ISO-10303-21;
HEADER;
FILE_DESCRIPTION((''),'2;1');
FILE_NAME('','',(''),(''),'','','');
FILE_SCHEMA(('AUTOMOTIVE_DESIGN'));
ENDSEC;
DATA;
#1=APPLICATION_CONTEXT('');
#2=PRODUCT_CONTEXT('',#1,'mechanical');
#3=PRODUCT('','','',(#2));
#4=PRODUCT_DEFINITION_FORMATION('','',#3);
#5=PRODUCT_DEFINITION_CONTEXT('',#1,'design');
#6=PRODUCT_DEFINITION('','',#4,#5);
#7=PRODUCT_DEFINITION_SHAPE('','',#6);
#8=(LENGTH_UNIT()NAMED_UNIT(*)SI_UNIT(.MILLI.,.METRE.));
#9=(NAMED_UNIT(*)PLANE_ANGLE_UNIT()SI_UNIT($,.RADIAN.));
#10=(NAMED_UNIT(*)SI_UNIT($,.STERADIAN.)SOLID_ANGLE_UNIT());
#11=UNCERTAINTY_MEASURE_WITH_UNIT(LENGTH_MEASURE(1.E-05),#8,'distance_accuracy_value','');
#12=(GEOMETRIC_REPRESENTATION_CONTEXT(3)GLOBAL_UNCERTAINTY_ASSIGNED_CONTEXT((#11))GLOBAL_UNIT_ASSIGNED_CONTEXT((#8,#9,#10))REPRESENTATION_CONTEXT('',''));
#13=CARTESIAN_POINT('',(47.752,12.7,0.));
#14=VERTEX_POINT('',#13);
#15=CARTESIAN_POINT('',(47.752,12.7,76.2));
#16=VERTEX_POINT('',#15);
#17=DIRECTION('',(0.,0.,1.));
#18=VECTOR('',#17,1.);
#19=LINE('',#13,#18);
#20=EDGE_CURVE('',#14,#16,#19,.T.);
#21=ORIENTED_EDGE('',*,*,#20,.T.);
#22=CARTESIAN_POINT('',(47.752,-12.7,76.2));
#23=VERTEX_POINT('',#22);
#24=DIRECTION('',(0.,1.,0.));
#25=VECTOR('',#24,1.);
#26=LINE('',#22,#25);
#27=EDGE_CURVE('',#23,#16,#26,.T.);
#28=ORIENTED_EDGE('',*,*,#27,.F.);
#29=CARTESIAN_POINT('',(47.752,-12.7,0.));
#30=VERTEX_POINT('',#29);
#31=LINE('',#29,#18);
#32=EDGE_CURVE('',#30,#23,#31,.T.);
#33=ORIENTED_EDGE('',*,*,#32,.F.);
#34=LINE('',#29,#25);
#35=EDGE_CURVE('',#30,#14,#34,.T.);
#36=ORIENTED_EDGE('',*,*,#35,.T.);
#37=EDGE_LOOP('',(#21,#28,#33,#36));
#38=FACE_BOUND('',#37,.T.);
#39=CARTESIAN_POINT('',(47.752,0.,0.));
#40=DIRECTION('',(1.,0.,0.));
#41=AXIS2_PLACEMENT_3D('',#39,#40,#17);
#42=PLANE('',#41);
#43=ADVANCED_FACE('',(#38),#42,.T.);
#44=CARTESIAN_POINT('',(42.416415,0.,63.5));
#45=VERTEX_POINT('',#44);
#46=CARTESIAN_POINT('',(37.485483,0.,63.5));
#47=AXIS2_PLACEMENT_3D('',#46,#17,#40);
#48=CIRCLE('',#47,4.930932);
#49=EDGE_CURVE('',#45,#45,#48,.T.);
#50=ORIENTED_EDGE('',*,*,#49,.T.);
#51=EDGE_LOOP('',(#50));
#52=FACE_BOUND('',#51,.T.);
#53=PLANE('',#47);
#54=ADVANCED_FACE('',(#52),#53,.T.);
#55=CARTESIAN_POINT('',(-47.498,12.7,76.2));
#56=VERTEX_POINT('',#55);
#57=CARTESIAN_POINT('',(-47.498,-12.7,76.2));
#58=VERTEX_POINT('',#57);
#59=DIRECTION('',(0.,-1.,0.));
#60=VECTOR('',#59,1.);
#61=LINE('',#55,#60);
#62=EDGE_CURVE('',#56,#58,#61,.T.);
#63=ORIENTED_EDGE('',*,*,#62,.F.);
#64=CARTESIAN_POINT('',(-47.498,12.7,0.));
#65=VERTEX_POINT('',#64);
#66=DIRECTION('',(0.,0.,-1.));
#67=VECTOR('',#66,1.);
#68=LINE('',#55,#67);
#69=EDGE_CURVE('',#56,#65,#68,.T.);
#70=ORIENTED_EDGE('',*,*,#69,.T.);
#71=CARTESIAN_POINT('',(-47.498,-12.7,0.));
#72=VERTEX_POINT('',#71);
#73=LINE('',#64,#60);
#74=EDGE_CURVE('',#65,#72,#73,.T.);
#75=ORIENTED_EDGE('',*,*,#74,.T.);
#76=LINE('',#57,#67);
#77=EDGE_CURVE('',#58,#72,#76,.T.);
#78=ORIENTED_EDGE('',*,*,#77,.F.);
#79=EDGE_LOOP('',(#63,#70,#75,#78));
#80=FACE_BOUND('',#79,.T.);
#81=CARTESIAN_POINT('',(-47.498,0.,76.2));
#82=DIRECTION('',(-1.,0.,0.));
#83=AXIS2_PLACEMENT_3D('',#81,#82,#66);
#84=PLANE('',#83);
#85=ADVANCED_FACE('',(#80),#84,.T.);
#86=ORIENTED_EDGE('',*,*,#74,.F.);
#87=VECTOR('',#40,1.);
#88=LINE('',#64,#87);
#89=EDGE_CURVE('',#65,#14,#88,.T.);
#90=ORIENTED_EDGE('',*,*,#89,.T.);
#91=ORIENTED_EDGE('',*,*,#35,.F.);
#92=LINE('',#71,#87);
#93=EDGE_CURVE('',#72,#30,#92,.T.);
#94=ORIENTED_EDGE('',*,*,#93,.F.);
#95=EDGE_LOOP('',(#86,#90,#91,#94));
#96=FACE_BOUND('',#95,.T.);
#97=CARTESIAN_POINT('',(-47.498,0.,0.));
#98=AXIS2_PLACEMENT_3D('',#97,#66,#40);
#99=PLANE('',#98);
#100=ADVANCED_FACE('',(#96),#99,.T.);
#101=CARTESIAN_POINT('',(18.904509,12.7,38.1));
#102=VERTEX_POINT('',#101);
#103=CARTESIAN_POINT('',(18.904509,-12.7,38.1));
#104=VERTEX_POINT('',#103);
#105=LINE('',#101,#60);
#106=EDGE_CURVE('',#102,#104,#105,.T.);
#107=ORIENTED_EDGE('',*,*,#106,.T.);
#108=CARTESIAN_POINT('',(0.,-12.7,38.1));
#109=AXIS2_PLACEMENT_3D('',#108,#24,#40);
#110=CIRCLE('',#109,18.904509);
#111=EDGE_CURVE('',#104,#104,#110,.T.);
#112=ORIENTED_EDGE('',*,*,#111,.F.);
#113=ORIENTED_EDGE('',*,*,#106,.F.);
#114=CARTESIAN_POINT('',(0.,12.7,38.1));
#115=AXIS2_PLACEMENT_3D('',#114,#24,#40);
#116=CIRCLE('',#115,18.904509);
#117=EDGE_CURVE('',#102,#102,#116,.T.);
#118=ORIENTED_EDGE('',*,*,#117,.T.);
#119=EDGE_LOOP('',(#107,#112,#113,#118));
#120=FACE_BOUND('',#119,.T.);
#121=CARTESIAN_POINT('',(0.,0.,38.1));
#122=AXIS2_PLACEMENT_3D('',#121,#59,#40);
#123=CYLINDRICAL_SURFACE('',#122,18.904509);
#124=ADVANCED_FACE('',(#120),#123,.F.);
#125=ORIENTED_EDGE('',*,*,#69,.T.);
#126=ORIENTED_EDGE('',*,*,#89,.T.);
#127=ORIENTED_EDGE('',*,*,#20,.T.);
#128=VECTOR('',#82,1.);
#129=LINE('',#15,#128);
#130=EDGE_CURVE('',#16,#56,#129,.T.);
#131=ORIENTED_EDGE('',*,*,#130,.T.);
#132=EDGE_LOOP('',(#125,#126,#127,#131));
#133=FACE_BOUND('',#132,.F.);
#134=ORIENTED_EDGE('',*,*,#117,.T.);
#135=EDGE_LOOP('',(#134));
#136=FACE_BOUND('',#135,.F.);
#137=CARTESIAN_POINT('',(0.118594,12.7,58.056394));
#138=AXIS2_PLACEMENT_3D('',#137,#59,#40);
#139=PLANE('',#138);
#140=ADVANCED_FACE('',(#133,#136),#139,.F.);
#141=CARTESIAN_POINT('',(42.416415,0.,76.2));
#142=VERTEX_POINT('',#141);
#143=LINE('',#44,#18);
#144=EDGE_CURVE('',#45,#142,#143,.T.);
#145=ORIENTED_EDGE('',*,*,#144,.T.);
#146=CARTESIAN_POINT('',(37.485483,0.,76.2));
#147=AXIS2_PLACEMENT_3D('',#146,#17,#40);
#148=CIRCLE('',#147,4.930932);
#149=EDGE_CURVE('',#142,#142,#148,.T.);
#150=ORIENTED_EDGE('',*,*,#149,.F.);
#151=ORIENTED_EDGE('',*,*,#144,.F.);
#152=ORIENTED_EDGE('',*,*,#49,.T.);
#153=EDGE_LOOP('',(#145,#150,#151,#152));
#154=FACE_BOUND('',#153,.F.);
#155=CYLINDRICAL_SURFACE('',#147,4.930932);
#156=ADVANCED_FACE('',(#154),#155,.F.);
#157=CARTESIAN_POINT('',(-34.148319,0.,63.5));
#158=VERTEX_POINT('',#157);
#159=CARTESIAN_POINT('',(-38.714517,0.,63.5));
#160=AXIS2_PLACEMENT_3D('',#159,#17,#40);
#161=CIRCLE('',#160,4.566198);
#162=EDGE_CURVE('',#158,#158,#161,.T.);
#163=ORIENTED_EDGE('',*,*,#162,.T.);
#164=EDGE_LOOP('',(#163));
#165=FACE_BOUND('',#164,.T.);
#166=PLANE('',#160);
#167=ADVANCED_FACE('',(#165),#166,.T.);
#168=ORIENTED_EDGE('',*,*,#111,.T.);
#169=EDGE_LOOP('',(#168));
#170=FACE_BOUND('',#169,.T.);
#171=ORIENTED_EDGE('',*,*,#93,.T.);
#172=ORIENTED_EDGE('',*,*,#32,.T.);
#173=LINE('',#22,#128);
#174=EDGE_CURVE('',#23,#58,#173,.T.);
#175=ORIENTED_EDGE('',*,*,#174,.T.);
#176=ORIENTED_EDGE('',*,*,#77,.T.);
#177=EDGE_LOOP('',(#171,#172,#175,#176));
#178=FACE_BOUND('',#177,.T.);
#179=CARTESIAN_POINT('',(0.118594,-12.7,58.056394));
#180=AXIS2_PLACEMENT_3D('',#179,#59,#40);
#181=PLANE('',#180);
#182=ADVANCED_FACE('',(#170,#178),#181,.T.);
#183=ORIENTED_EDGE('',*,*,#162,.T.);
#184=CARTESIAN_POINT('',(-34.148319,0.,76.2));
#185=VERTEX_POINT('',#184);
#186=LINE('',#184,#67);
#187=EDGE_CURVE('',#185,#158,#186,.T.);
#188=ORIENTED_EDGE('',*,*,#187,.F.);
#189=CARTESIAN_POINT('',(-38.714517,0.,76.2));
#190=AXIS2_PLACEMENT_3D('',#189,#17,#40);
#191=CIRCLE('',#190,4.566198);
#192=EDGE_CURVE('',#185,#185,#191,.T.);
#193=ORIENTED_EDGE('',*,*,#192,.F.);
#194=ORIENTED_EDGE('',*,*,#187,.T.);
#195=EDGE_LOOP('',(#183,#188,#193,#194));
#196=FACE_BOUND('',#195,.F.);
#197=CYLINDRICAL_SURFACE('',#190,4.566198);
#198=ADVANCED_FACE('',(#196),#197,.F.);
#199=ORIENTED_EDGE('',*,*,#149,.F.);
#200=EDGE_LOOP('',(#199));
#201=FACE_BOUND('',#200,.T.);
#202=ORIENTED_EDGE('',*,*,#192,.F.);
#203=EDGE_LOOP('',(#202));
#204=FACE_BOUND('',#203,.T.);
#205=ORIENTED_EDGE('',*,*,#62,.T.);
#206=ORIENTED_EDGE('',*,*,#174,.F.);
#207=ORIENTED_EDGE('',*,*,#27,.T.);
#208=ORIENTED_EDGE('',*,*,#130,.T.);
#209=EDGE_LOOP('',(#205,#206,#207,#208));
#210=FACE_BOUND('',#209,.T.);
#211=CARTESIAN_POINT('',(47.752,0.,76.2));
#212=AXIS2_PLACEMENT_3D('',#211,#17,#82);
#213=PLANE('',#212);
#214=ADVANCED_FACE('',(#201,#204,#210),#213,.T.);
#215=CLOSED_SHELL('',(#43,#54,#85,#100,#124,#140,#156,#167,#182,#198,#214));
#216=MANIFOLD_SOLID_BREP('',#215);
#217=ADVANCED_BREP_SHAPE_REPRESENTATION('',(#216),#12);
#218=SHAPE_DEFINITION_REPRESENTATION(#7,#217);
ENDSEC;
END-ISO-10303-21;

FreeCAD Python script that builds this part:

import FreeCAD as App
import Part
import Sketcher
from FreeCAD import Vector
Q = App.Units.Quantity

doc = App.newDocument("Part")
body = doc.addObject("PartDesign::Body", "Body")

sketch1 = body.newObject("Sketcher::SketchObject", "Sketch")
sketch1.AttachmentSupport = (doc.getObject("XZ_Plane"), [""])
sketch1.MapMode = "FlatFace"
sketch1.addGeometry(Part.LineSegment(Vector(47.752, 76.2, 0), Vector(-47.498, 76.2, 0)), False)
sketch1.addGeometry(Part.LineSegment(Vector(-47.498, 76.2, 0), Vector(-47.498, 0, 0)), False)
sketch1.addGeometry(Part.LineSegment(Vector(-47.498, 0, 0), Vector(47.752, 0, 0)), False)
sketch1.addGeometry(Part.LineSegment(Vector(47.752, 0, 0), Vector(47.752, 76.2, 0)), False)
sketch1.addGeometry(Part.Circle(Vector(0, 38.1, 0), Vector(0, 0, 1), 18.904509), False)
sketch1.addConstraint(Sketcher.Constraint("Coincident", 0, 2, 1, 1))
sketch1.addConstraint(Sketcher.Constraint("Coincident", 1, 2, 2, 1))
sketch1.addConstraint(Sketcher.Constraint("Coincident", 2, 2, 3, 1))
sketch1.addConstraint(Sketcher.Constraint("Coincident", 3, 2, 0, 1))
sketch1.addConstraint(Sketcher.Constraint("Horizontal", 0))
sketch1.addConstraint(Sketcher.Constraint("Vertical", 1))
sketch1.addConstraint(Sketcher.Constraint("Horizontal", 2))
sketch1.addConstraint(Sketcher.Constraint("Vertical", 3))
sketch1.addConstraint(Sketcher.Constraint("PointOnObject", 4, 3, -2))
sketch1.addConstraint(Sketcher.Constraint("PointOnObject", 1, 2, -1))
sketch1.addConstraint(Sketcher.Constraint("DistanceY", 1, 2, 1, 1, Q("3 in")))
sketch1.addConstraint(Sketcher.Constraint("DistanceX", 0, 2, 0, 1, Q("3.75 in")))
sketch1.addConstraint(Sketcher.Constraint("DistanceY", -1, 1, 4, 3, Q("1.5 in")))
sketch1.addConstraint(Sketcher.Constraint("DistanceX", 0, 2, -1, 1, Q("1.87 in")))
sketch1.addConstraint(Sketcher.Constraint("Diameter", 4, 37.809018))
pad1 = body.newObject("PartDesign::Pad", "Pad")
pad1.Profile = sketch1
pad1.Length = Q("1 in")
pad1.Midplane = True

sketch2 = body.newObject("Sketcher::SketchObject", "Sketch001")
sketch2.AttachmentSupport = (doc.getObject("XY_Plane"), [""])
sketch2.MapMode = "FlatFace"
sketch2.AttachmentOffset = App.Placement(Vector(0, 0, 3 * 25.4), App.Rotation())
sketch2.addGeometry(Part.Circle(Vector(-38.714517, 0, 0), Vector(0, 0, 1), 4.566198), False)
sketch2.addGeometry(Part.Circle(Vector(37.485483, 0, 0), Vector(0, 0, 1), 4.930932), False)
sketch2.addConstraint(Sketcher.Constraint("PointOnObject", 0, 3, -1))
sketch2.addConstraint(Sketcher.Constraint("PointOnObject", 1, 3, -1))
sketch2.addConstraint(Sketcher.Constraint("DistanceX", 0, 3, 1, 3, Q("3 in")))
sketch2.addConstraint(Sketcher.Constraint("Diameter", 0, 9.132396))
sketch2.addConstraint(Sketcher.Constraint("Diameter", 1, 9.861864))
sketch2.addConstraint(Sketcher.Constraint("DistanceX", 0, 3, -1, 1, 38.714517))
pocket1 = body.newObject("PartDesign::Pocket", "Pocket")
pocket1.Profile = sketch2
pocket1.Length = Q("1 in")
pocket1.Midplane = True

doc.recompute()
